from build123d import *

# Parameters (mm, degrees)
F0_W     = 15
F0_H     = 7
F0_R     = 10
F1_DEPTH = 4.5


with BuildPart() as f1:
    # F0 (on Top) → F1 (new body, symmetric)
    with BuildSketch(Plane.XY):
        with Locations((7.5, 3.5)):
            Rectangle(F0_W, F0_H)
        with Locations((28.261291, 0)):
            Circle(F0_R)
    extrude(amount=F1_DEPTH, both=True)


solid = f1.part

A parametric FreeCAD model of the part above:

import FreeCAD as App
import Part
import Sketcher

doc = App.newDocument("Part")
params = doc.addObject("Spreadsheet::Sheet", "Params")
for row, (alias, value) in enumerate([
    ("sketch1_diameter", "20 mm"),
    ("sketch1_width", "15 mm"),
    ("sketch1_height", "7 mm"),
    ("pad1_length", "9 mm"),
], start=1):
    params.set(f"A{row}", alias)
    params.set(f"B{row}", "=" + value)
    params.setAlias(f"B{row}", alias)

body = doc.addObject("PartDesign::Body", "Body")
body.AllowCompound = True

sketch1 = body.newObject("Sketcher::SketchObject", "Sketch")
sketch1.AttachmentSupport = (doc.getObject("XY_Plane"), [""])
sketch1.MapMode = "FlatFace"
sketch1.addGeometry([
    Part.LineSegment(App.Vector(0, 7, 0), App.Vector(0, 0, 0)),
    Part.LineSegment(App.Vector(0, 0, 0), App.Vector(15, 0, 0)),
    Part.LineSegment(App.Vector(15, 0, 0), App.Vector(15, 7, 0)),
    Part.LineSegment(App.Vector(15, 7, 0), App.Vector(0, 7, 0)),
    Part.Circle(App.Vector(28.261291, 0, 0), App.Vector(0, 0, 1), 10),
], False)
sketch1.addConstraint([
    Sketcher.Constraint("Coincident", 0, 2, 1, 1),
    Sketcher.Constraint("Coincident", 1, 2, 2, 1),
    Sketcher.Constraint("Coincident", 2, 2, 3, 1),
    Sketcher.Constraint("Coincident", 3, 2, 0, 1),
    Sketcher.Constraint("Vertical", 0),
    Sketcher.Constraint("Horizontal", 1),
    Sketcher.Constraint("Vertical", 2),
    Sketcher.Constraint("Horizontal", 3),
    Sketcher.Constraint("Coincident", 0, 2, -1, 1),
    Sketcher.Constraint("PointOnObject", 4, 3, -1),
    Sketcher.Constraint("Diameter", 4, 20.0),
    Sketcher.Constraint("DistanceX", 1, 1, 1, 2, 15.0),
    Sketcher.Constraint("DistanceY", 0, 2, 0, 1, 7.0),
    Sketcher.Constraint("DistanceX", -1, 1, 4, 3, 28.261291),
])
sketch1.setExpression("Constraints[10]", "Params.sketch1_diameter")
sketch1.setExpression("Constraints[11]", "Params.sketch1_width")
sketch1.setExpression("Constraints[12]", "Params.sketch1_height")
pad1 = body.newObject("PartDesign::Pad", "Pad")
pad1.Profile = sketch1
pad1.setExpression("Length", "Params.pad1_length")
pad1.Midplane = True

doc.recompute()
